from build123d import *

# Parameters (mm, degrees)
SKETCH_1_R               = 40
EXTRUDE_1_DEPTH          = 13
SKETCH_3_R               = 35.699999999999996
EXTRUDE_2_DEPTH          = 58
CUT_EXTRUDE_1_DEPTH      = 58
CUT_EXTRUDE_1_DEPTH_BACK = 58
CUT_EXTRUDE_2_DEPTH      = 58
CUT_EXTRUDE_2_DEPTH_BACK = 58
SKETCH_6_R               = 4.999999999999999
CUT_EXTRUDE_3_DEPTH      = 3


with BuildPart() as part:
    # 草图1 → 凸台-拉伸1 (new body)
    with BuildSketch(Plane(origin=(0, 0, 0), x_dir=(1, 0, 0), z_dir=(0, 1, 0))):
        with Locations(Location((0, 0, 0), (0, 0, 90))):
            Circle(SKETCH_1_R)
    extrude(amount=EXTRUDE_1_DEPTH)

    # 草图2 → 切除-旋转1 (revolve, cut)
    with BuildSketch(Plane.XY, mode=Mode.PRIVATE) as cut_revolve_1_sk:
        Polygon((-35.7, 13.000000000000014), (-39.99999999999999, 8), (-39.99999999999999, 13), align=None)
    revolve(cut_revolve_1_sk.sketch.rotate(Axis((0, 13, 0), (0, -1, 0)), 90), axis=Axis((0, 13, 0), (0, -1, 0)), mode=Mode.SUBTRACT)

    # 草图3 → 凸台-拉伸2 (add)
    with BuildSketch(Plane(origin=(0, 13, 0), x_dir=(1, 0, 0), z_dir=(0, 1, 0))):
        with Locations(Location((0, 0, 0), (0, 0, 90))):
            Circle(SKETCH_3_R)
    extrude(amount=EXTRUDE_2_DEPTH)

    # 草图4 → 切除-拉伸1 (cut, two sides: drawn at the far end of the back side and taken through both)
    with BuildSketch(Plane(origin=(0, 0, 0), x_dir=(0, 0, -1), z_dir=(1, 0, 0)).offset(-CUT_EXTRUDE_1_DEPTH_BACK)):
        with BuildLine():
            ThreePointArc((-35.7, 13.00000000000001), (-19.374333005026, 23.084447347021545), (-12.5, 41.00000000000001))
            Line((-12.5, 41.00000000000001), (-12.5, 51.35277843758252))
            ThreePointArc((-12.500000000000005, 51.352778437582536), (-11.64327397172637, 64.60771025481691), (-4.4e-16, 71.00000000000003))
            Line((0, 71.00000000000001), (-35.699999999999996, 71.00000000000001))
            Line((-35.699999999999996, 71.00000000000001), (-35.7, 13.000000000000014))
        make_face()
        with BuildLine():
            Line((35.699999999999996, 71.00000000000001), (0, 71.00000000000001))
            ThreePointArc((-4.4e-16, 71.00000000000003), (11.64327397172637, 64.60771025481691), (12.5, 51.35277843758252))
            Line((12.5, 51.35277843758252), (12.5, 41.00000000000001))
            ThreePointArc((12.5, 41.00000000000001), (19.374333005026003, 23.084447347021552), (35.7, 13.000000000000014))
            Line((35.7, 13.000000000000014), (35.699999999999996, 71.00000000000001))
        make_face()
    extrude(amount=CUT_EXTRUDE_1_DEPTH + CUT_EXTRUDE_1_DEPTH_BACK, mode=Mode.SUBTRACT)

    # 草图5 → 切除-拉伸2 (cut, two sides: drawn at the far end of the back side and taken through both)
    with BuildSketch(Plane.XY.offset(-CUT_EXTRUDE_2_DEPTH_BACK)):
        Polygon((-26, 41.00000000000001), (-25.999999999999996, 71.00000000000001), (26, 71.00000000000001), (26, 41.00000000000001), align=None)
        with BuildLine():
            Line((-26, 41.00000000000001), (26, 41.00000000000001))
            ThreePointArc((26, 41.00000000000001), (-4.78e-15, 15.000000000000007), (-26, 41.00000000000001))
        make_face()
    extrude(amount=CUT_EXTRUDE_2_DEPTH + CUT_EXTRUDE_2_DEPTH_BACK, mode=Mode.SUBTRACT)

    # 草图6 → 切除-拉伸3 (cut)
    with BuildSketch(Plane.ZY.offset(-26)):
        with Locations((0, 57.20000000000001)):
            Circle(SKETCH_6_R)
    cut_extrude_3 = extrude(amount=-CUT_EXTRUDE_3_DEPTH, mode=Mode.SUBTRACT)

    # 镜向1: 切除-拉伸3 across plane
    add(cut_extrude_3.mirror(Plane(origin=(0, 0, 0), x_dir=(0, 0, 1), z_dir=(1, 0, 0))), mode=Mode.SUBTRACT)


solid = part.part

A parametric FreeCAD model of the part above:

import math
import FreeCAD as App
import Part
import Sketcher
from FreeCAD import Vector
Q = App.Units.Quantity


def add_polygon(sketch, points):
    """Adds a closed chain of lines whose ends are joined by coincident constraints."""
    first, n = sketch.GeometryCount, len(points)
    for a, b in zip(points, points[1:] + points[:1]):
        sketch.addGeometry(Part.LineSegment(App.Vector(*a, 0), App.Vector(*b, 0)), False)
    for i in range(n):
        sketch.addConstraint(Sketcher.Constraint("Coincident", first + i, 2, first + (i + 1) % n, 1))

doc = App.newDocument("Part")
body = doc.addObject("PartDesign::Body", "Body")

# Sketch on XZ plane
sketch1 = body.newObject("Sketcher::SketchObject", "Sketch")
sketch1.AttachmentSupport = (doc.getObject("XZ_Plane"), [""])
sketch1.MapMode = "FlatFace"
sketch1.addGeometry(Part.Circle(Vector(0, 0, 0), Vector(0, 0, 1), 40), False)
sketch1.addConstraint([
    Sketcher.Constraint("Coincident", 0, 3, -1, 1),
    Sketcher.Constraint("Diameter", 0, Q("80 mm")),
])
pad1 = body.newObject("PartDesign::Pad", "Pad")
pad1.Profile = sketch1
pad1.Length = 13
pad1.Reversed = True

# Sketch on XY plane
sketch2 = body.newObject("Sketcher::SketchObject", "Sketch001")
sketch2.AttachmentSupport = (doc.getObject("XY_Plane"), [""])
sketch2.MapMode = "FlatFace"
add_polygon(sketch2, [(-40, 8), (-35.7, 13), (-40, 13)])  # lines 0-2
sketch2.addConstraint([
    Sketcher.Constraint("Horizontal", 1),
    Sketcher.Constraint("Vertical", 2),
    Sketcher.Constraint("DistanceY", 2, 2, 2, 1, Q("5 mm")),
    Sketcher.Constraint("DistanceX", 1, 2, 1, 1, Q("4.3 mm")),
    Sketcher.Constraint("DistanceY", -1, 1, 0, 2, Q("13 mm")),
    Sketcher.Constraint("DistanceX", 1, 2, -1, 1, Q("40 mm")),
])
groove = body.newObject("PartDesign::Groove", "Groove")
groove.Profile = sketch2
groove.ReferenceAxis = (sketch2, ["V_Axis"])
groove.Angle = 360

# Sketch on XZ plane
sketch3 = body.newObject("Sketcher::SketchObject", "Sketch002")
sketch3.AttachmentSupport = (doc.getObject("XZ_Plane"), [""])
sketch3.MapMode = "FlatFace"
sketch3.AttachmentOffset = App.Placement(Vector(0, 0, -13), App.Rotation())
sketch3.addGeometry(Part.Circle(Vector(0, 0, 0), Vector(0, 0, 1), 35.7), False)
sketch3.addConstraint([
    Sketcher.Constraint("Coincident", 0, 3, -1, 1),
    Sketcher.Constraint("Diameter", 0, Q("71.4 mm")),
])
pad2 = body.newObject("PartDesign::Pad", "Pad001")
pad2.Profile = sketch3
pad2.Length = 58
pad2.Reversed = True

# Sketch on YZ plane
sketch4 = body.newObject("Sketcher::SketchObject", "Sketch003")
sketch4.AttachmentSupport = (doc.getObject("YZ_Plane"), [""])
sketch4.MapMode = "FlatFace"
sketch4.addGeometry([
    Part.ArcOfCircle(Part.Circle(Vector(42.224983, 42.47498, 0), Vector(0, 0, 1), 30), math.radians(-166.948154), math.radians(-92.340196)),  # 0
    Part.LineSegment(Vector(41, 12.5, 0), Vector(51.352778, 12.5, 0)),  # 1
    Part.ArcOfCircle(Part.Circle(Vector(57.2, 0, 0), Vector(0, 0, 1), 13.8), math.radians(0), math.radians(115.069146)),  # 2
    Part.LineSegment(Vector(71, 0, 0), Vector(71, 35.7, 0)),  # 3
    Part.LineSegment(Vector(71, 35.7, 0), Vector(13, 35.7, 0)),  # 4
    Part.LineSegment(Vector(71, -35.7, 0), Vector(71, 0, 0)),  # 5
    Part.ArcOfCircle(Part.Circle(Vector(57.2, 0, 0), Vector(0, 0, 1), 13.8), math.radians(-115.069146), math.radians(0)),  # 6
    Part.LineSegment(Vector(51.352778, -12.5, 0), Vector(41, -12.5, 0)),  # 7
    Part.ArcOfCircle(Part.Circle(Vector(42.224983, -42.47498, 0), Vector(0, 0, 1), 30), math.radians(92.340196), math.radians(166.948154)),  # 8
    Part.LineSegment(Vector(13, -35.7, 0), Vector(71, -35.7, 0)),  # 9
], False)
sketch4.addConstraint([
    Sketcher.Constraint("Coincident", 0, 2, 1, 1),
    Sketcher.Constraint("Coincident", 1, 2, 2, 2),
    Sketcher.Constraint("Tangent", 2, 1, 3, 1),
    Sketcher.Constraint("Coincident", 3, 2, 4, 1),
    Sketcher.Constraint("Coincident", 4, 2, 0, 1),
    Sketcher.Constraint("Tangent", 5, 2, 6, 2),
    Sketcher.Constraint("Coincident", 6, 1, 7, 1),
    Sketcher.Constraint("Coincident", 7, 2, 8, 1),
    Sketcher.Constraint("Coincident", 8, 2, 9, 1),
    Sketcher.Constraint("Coincident", 9, 2, 5, 1),
    Sketcher.Constraint("Horizontal", 1),
    Sketcher.Constraint("Vertical", 3),
    Sketcher.Constraint("Horizontal", 4),
    Sketcher.Constraint("Vertical", 5),
    Sketcher.Constraint("Horizontal", 7),
    Sketcher.Constraint("Horizontal", 9),
    Sketcher.Constraint("Coincident", 6, 3, 2, 3),
    Sketcher.Constraint("Equal", 2, 6),
    Sketcher.Constraint("Equal", 0, 8),
    Sketcher.Constraint("Symmetric", 0, 3, 8, 3, -1),
    Sketcher.Constraint("Symmetric", 1, 2, 6, 1, -1),
    Sketcher.Constraint("Vertical", 4, 2, 8, 2),
    Sketcher.Constraint("Radius", 0, Q("30 mm")),
    Sketcher.Constraint("Radius", 2, Q("13.8 mm")),
    Sketcher.Constraint("DistanceX", 4, 2, 4, 1, Q("58 mm")),
    Sketcher.Constraint("DistanceY", 3, 1, 3, 2, Q("35.7 mm")),
    Sketcher.Constraint("DistanceX", -1, 1, 0, 2, Q("41 mm")),
    Sketcher.Constraint("DistanceX", -1, 1, 2, 1, Q("71 mm")),
    Sketcher.Constraint("DistanceY", 6, 1, 1, 2, Q("25 mm")),
])
pocket1 = body.newObject("PartDesign::Pocket", "Pocket")
pocket1.Profile = sketch4
pocket1.Type = "ThroughAll"
pocket1.Midplane = True

# Sketch on XY plane
sketch5 = body.newObject("Sketcher::SketchObject", "Sketch004")
sketch5.AttachmentSupport = (doc.getObject("XY_Plane"), [""])
sketch5.MapMode = "FlatFace"
sketch5.addGeometry([
    Part.LineSegment(Vector(-26, 71, 0), Vector(-26, 41, 0)),
    Part.ArcOfCircle(Part.Circle(Vector(0, 41, 0), Vector(0, 0, 1), 26), math.radians(180), math.radians(360)),
    Part.LineSegment(Vector(26, 41, 0), Vector(26, 71, 0)),
    Part.LineSegment(Vector(26, 71, 0), Vector(-26, 71, 0)),
], False)
sketch5.addConstraint([
    Sketcher.Constraint("Tangent", 0, 2, 1, 1),
    Sketcher.Constraint("Tangent", 1, 2, 2, 1),
    Sketcher.Constraint("Coincident", 2, 2, 3, 1),
    Sketcher.Constraint("Coincident", 3, 2, 0, 1),
    Sketcher.Constraint("Vertical", 0),
    Sketcher.Constraint("Vertical", 2),
    Sketcher.Constraint("Horizontal", 3),
    Sketcher.Constraint("PointOnObject", 1, 3, -2),
    Sketcher.Constraint("Radius", 1, Q("26 mm")),
    Sketcher.Constraint("DistanceY", 0, 2, 0, 1, Q("30 mm")),
    Sketcher.Constraint("DistanceY", -1, 1, 1, 3, Q("41 mm")),
])
pocket2 = body.newObject("PartDesign::Pocket", "Pocket001")
pocket2.Profile = sketch5
pocket2.Type = "ThroughAll"
pocket2.Midplane = True

# Sketch on YZ plane
sketch6 = body.newObject("Sketcher::SketchObject", "Sketch005")
sketch6.AttachmentSupport = (doc.getObject("YZ_Plane"), [""])
sketch6.MapMode = "FlatFace"
sketch6.AttachmentOffset = App.Placement(Vector(0, 0, 26), App.Rotation())
sketch6.addGeometry(Part.Circle(Vector(57.2, 0, 0), Vector(0, 0, 1), 5), False)
sketch6.addConstraint([
    Sketcher.Constraint("PointOnObject", 0, 3, -1),
    Sketcher.Constraint("Diameter", 0, Q("10 mm")),
    Sketcher.Constraint("DistanceX", -1, 1, 0, 3, Q("57.2 mm")),
])
pocket3 = body.newObject("PartDesign::Pocket", "Pocket002")
pocket3.Profile = sketch6
pocket3.Length = 3
pocket3.Reversed = True
doc.recompute()

mirrored = body.newObject("PartDesign::Mirrored", "Mirrored")
mirrored.Originals = [pocket3]
mirrored.MirrorPlane = (doc.getObject("YZ_Plane"), [""])
body.Tip = mirrored

doc.recompute()
